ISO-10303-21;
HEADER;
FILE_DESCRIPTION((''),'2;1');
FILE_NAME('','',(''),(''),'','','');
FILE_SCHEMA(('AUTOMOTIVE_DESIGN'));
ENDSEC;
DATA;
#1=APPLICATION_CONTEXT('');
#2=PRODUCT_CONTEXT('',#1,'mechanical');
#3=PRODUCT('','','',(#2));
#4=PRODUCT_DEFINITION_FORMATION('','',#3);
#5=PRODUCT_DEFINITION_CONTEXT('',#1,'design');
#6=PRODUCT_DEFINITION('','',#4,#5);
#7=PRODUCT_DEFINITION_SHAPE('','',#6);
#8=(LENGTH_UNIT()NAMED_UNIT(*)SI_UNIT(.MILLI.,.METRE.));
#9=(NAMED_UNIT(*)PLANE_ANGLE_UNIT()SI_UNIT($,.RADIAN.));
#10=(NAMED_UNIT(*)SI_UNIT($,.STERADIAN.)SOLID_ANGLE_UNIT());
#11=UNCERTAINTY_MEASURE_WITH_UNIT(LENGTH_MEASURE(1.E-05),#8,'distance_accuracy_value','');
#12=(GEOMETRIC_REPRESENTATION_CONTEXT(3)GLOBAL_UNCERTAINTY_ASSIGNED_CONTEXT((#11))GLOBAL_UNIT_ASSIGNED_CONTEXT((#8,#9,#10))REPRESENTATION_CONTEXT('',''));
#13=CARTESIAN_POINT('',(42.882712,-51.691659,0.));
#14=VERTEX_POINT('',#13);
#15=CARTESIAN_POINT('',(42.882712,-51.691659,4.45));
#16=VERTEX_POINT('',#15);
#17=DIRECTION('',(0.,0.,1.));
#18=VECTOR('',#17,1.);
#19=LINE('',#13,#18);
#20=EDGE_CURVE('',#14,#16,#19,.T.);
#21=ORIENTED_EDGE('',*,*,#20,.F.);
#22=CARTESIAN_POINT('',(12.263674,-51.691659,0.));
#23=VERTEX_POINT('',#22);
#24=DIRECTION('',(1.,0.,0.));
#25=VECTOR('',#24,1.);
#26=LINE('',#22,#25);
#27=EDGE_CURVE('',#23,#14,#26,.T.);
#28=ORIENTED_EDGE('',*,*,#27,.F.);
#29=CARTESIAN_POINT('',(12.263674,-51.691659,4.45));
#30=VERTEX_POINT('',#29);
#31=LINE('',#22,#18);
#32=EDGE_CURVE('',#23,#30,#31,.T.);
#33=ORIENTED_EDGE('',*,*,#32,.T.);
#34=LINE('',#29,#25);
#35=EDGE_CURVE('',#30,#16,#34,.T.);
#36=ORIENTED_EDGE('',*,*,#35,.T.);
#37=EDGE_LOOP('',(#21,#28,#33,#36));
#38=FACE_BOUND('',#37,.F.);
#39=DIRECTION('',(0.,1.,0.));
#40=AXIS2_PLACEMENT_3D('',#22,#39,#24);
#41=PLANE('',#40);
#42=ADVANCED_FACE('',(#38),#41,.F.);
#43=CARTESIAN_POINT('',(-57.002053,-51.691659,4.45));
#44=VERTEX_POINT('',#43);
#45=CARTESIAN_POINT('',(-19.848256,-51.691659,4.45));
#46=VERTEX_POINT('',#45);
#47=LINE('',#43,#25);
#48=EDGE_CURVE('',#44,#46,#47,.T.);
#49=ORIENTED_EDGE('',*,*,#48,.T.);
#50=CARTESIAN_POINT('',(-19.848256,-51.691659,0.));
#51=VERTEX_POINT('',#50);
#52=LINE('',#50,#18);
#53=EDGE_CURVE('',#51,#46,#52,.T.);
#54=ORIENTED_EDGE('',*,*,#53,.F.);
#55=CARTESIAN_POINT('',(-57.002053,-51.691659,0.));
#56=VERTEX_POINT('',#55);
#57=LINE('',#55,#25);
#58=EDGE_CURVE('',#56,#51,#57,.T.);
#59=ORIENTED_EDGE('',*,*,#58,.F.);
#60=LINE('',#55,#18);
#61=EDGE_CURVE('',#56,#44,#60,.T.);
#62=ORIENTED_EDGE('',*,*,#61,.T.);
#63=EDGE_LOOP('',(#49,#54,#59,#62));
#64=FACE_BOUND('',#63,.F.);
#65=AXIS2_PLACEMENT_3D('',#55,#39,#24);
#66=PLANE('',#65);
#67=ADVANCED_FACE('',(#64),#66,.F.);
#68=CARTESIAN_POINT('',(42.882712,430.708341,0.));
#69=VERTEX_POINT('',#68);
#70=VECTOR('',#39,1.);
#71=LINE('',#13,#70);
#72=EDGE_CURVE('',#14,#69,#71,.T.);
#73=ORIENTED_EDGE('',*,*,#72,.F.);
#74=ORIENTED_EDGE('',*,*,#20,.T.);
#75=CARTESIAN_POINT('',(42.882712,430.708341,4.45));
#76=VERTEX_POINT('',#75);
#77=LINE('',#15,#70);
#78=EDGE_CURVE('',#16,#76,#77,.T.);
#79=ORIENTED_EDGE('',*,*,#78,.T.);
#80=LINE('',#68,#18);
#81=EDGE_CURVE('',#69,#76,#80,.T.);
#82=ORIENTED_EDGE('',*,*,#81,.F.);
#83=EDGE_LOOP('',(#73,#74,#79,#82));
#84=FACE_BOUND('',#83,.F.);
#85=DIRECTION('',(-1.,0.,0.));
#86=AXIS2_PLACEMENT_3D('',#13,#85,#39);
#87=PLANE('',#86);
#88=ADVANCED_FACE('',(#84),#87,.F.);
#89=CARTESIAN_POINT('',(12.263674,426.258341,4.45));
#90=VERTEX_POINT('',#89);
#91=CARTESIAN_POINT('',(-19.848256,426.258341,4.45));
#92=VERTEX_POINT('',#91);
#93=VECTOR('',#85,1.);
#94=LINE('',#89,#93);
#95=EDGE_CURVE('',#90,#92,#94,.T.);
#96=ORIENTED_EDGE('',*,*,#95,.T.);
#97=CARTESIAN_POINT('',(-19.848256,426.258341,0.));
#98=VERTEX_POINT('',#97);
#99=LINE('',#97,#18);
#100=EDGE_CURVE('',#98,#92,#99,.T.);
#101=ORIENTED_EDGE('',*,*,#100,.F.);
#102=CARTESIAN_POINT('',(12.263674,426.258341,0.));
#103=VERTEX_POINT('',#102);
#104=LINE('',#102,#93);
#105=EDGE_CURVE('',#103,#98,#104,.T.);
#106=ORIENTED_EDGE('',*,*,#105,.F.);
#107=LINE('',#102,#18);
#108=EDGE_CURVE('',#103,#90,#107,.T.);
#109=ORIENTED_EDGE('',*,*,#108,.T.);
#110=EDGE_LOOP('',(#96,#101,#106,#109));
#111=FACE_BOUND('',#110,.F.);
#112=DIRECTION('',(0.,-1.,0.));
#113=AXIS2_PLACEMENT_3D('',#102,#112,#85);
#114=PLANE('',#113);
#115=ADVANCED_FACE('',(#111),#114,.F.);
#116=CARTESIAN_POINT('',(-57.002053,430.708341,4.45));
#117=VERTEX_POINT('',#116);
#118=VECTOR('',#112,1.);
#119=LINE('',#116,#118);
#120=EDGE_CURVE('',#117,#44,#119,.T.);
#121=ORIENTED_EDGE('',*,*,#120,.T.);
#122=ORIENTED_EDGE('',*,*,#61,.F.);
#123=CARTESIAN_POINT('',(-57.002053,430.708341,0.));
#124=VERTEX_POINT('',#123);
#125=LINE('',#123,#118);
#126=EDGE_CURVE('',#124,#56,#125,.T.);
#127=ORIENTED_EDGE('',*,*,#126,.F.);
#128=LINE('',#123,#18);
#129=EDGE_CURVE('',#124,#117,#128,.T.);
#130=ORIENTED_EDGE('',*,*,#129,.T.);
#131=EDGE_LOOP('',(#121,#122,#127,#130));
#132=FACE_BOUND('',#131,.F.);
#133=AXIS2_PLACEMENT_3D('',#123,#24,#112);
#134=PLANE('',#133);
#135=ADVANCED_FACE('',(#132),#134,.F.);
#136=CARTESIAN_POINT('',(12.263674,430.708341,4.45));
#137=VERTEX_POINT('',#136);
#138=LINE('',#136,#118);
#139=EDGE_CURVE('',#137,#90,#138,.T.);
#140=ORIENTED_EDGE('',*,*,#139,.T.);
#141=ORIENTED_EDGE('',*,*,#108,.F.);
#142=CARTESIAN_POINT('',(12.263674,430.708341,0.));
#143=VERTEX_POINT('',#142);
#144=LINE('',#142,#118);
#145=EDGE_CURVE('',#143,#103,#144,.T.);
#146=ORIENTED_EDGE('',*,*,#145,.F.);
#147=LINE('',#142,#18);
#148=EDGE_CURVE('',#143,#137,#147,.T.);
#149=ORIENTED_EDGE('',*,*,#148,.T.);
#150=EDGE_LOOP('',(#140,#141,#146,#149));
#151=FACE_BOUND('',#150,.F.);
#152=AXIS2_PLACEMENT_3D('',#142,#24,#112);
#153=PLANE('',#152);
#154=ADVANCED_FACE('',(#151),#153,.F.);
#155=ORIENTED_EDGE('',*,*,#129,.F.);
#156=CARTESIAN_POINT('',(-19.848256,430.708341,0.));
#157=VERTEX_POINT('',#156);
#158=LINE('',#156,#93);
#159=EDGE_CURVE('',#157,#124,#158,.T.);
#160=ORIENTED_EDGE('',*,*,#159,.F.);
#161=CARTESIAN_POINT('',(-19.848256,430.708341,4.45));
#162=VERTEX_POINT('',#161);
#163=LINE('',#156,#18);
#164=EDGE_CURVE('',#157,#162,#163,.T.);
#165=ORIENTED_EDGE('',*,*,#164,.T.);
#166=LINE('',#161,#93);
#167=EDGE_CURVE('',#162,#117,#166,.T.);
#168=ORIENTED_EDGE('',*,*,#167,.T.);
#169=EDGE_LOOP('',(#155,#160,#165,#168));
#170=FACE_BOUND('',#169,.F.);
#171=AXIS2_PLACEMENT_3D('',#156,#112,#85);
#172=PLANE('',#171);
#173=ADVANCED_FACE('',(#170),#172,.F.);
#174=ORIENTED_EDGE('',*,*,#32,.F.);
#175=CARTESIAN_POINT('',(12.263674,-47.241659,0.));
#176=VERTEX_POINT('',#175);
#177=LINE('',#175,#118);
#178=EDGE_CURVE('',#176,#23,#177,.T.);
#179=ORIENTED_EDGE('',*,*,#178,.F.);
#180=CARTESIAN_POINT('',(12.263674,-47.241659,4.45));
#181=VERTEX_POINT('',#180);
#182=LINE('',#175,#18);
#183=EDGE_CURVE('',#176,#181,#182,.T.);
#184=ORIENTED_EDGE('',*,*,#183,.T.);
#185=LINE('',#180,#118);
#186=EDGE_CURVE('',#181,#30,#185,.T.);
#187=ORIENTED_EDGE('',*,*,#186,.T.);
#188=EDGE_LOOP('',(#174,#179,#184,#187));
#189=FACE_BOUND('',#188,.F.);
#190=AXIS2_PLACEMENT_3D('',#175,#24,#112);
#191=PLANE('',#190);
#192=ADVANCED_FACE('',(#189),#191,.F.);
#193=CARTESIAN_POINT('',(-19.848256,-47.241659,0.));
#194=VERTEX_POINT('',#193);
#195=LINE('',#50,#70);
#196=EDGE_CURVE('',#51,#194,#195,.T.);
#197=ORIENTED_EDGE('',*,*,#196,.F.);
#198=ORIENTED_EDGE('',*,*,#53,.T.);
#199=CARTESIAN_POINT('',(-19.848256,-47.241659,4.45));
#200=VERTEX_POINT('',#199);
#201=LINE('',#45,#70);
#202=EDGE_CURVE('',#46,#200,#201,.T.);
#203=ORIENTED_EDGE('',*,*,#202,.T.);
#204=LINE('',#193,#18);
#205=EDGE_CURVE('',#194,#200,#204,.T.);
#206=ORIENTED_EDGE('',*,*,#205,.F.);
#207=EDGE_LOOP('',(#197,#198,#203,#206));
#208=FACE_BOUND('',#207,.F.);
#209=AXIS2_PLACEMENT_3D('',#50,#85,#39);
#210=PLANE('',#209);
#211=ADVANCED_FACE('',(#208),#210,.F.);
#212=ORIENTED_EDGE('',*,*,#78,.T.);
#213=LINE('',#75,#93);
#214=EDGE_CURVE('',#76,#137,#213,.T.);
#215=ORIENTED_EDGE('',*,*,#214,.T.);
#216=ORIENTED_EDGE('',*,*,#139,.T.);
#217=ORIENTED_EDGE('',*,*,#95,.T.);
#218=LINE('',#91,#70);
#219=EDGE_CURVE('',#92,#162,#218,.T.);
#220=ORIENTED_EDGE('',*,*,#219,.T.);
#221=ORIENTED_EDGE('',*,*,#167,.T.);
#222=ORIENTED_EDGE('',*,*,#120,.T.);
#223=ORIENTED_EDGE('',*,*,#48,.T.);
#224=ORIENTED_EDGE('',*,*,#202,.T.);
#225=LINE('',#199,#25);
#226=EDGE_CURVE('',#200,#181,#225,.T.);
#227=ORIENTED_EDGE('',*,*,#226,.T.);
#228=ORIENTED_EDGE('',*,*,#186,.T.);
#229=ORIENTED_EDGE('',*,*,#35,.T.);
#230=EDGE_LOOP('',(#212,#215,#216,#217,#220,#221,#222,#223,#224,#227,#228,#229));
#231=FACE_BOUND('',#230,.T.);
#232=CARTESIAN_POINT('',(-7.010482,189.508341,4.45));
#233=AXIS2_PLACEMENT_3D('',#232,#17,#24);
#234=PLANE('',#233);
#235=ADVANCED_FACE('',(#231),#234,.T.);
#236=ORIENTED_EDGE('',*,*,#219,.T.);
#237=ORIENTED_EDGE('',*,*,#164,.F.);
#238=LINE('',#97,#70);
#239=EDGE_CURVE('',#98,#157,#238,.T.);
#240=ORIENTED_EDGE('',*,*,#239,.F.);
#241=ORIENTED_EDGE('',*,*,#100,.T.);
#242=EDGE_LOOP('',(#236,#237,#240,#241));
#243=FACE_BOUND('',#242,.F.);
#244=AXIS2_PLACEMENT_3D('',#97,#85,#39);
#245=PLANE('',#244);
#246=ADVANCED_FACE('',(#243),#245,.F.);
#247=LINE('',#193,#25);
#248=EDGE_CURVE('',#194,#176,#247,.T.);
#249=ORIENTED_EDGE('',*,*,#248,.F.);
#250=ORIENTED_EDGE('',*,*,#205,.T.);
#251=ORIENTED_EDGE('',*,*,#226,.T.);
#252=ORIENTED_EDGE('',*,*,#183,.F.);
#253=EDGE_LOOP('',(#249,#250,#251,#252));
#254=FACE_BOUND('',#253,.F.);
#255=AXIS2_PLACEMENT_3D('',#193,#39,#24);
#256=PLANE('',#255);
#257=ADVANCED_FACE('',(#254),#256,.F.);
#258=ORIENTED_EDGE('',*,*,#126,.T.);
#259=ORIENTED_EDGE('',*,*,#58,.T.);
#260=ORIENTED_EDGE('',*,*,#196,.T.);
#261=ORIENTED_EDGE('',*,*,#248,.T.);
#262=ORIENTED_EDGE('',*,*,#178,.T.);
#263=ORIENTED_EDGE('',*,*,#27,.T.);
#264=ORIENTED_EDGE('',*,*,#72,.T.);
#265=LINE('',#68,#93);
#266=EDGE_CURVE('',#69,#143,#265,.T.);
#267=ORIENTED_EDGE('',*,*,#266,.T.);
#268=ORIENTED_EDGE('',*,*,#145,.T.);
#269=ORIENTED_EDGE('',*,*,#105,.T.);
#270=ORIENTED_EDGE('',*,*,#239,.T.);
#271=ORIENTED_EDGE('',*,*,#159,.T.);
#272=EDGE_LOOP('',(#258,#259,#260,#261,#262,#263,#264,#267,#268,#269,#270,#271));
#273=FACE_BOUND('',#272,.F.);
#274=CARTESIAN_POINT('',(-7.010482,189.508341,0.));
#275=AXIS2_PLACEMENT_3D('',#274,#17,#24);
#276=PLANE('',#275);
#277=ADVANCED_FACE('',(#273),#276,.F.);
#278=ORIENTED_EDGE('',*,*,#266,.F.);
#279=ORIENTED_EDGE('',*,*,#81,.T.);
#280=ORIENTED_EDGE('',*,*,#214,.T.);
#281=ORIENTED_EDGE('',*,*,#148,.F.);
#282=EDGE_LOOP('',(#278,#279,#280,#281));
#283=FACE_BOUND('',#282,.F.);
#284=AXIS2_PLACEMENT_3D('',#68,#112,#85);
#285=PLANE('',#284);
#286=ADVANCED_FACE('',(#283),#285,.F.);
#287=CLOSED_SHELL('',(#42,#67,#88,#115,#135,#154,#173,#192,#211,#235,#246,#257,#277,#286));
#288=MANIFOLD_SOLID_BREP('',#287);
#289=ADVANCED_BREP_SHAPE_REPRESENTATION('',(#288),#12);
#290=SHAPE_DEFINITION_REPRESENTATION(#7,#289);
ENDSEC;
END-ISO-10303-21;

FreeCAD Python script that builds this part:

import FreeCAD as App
import Part
import Sketcher

V = App.Vector
Q = App.Units.Quantity

doc = App.newDocument("Part")
body = doc.addObject("PartDesign::Body", "Body")

# Sketch on XY plane
sketch1 = doc.addObject("Sketcher::SketchObject", "Sketch")
body.addObject(sketch1)
sketch1.AttachmentSupport = (doc.XY_Plane, [""])
sketch1.MapMode = "FlatFace"
sketch1.addGeometry([
    Part.LineSegment(V(12.3, 430.7, 0), V(12.3, 426.3, 0)),  # 0
    Part.LineSegment(V(12.3, 426.3, 0), V(-19.8, 426.3, 0)),  # 1
    Part.LineSegment(V(-19.8, 426.3, 0), V(-19.8, 430.7, 0)),  # 2
    Part.LineSegment(V(-19.8, 430.7, 0), V(-57, 430.7, 0)),  # 3
    Part.LineSegment(V(-57, 430.7, 0), V(-57, -51.7, 0)),  # 4
    Part.LineSegment(V(-57, -51.7, 0), V(-19.8, -51.7, 0)),  # 5
    Part.LineSegment(V(-19.8, -51.7, 0), V(-19.8, -47.2, 0)),  # 6
    Part.LineSegment(V(-19.8, -47.2, 0), V(12.3, -47.2, 0)),  # 7
    Part.LineSegment(V(12.3, -47.2, 0), V(12.3, -51.7, 0)),  # 8
    Part.LineSegment(V(12.3, -51.7, 0), V(42.9, -51.7, 0)),  # 9
    Part.LineSegment(V(42.9, -51.7, 0), V(42.9, 430.7, 0)),  # 10
    Part.LineSegment(V(42.9, 430.7, 0), V(12.3, 430.7, 0)),  # 11
], False)
sketch1.addConstraint([
    Sketcher.Constraint("Coincident", 0, 2, 1, 1),
    Sketcher.Constraint("Coincident", 1, 2, 2, 1),
    Sketcher.Constraint("Coincident", 2, 2, 3, 1),
    Sketcher.Constraint("Coincident", 3, 2, 4, 1),
    Sketcher.Constraint("Coincident", 4, 2, 5, 1),
    Sketcher.Constraint("Coincident", 5, 2, 6, 1),
    Sketcher.Constraint("Coincident", 6, 2, 7, 1),
    Sketcher.Constraint("Coincident", 7, 2, 8, 1),
    Sketcher.Constraint("Coincident", 8, 2, 9, 1),
    Sketcher.Constraint("Coincident", 9, 2, 10, 1),
    Sketcher.Constraint("Coincident", 10, 2, 11, 1),
    Sketcher.Constraint("Coincident", 11, 2, 0, 1),
    Sketcher.Constraint("Vertical", 0),
    Sketcher.Constraint("Horizontal", 1),
    Sketcher.Constraint("Vertical", 2),
    Sketcher.Constraint("Horizontal", 3),
    Sketcher.Constraint("Vertical", 4),
    Sketcher.Constraint("Horizontal", 5),
    Sketcher.Constraint("Vertical", 6),
    Sketcher.Constraint("Horizontal", 7),
    Sketcher.Constraint("Vertical", 8),
    Sketcher.Constraint("Horizontal", 9),
    Sketcher.Constraint("Vertical", 10),
    Sketcher.Constraint("Horizontal", 11),
    Sketcher.Constraint("Horizontal", 5, 2, 8, 2),
    Sketcher.Constraint("Horizontal", 3, 2, 10, 2),
    Sketcher.Constraint("Vertical", 2, 2, 5, 2),
    Sketcher.Constraint("Vertical", 0, 2, 7, 2),
    Sketcher.Constraint("Equal", 2, 6),
    Sketcher.Constraint("DistanceY", 4, 2, 4, 1, Q("482.4 mm")),
    Sketcher.Constraint("DistanceY", 0, 2, 0, 1, Q("4.45 mm")),
    Sketcher.Constraint("DistanceX", 1, 2, 1, 1, Q("32.11193 mm")),
    Sketcher.Constraint("DistanceX", 3, 2, 3, 1, Q("37.153797 mm")),
    Sketcher.Constraint("DistanceX", 9, 1, 9, 2, Q("30.619038 mm")),
    Sketcher.Constraint("DistanceY", -1, 1, 0, 2, Q("426.258341 mm")),
    Sketcher.Constraint("DistanceX", -1, 1, 9, 2, Q("42.882712 mm")),
])
pad1 = doc.addObject("PartDesign::Pad", "Pad")
body.addObject(pad1)
pad1.Profile = sketch1
pad1.Length = 4.45

doc.recompute()
